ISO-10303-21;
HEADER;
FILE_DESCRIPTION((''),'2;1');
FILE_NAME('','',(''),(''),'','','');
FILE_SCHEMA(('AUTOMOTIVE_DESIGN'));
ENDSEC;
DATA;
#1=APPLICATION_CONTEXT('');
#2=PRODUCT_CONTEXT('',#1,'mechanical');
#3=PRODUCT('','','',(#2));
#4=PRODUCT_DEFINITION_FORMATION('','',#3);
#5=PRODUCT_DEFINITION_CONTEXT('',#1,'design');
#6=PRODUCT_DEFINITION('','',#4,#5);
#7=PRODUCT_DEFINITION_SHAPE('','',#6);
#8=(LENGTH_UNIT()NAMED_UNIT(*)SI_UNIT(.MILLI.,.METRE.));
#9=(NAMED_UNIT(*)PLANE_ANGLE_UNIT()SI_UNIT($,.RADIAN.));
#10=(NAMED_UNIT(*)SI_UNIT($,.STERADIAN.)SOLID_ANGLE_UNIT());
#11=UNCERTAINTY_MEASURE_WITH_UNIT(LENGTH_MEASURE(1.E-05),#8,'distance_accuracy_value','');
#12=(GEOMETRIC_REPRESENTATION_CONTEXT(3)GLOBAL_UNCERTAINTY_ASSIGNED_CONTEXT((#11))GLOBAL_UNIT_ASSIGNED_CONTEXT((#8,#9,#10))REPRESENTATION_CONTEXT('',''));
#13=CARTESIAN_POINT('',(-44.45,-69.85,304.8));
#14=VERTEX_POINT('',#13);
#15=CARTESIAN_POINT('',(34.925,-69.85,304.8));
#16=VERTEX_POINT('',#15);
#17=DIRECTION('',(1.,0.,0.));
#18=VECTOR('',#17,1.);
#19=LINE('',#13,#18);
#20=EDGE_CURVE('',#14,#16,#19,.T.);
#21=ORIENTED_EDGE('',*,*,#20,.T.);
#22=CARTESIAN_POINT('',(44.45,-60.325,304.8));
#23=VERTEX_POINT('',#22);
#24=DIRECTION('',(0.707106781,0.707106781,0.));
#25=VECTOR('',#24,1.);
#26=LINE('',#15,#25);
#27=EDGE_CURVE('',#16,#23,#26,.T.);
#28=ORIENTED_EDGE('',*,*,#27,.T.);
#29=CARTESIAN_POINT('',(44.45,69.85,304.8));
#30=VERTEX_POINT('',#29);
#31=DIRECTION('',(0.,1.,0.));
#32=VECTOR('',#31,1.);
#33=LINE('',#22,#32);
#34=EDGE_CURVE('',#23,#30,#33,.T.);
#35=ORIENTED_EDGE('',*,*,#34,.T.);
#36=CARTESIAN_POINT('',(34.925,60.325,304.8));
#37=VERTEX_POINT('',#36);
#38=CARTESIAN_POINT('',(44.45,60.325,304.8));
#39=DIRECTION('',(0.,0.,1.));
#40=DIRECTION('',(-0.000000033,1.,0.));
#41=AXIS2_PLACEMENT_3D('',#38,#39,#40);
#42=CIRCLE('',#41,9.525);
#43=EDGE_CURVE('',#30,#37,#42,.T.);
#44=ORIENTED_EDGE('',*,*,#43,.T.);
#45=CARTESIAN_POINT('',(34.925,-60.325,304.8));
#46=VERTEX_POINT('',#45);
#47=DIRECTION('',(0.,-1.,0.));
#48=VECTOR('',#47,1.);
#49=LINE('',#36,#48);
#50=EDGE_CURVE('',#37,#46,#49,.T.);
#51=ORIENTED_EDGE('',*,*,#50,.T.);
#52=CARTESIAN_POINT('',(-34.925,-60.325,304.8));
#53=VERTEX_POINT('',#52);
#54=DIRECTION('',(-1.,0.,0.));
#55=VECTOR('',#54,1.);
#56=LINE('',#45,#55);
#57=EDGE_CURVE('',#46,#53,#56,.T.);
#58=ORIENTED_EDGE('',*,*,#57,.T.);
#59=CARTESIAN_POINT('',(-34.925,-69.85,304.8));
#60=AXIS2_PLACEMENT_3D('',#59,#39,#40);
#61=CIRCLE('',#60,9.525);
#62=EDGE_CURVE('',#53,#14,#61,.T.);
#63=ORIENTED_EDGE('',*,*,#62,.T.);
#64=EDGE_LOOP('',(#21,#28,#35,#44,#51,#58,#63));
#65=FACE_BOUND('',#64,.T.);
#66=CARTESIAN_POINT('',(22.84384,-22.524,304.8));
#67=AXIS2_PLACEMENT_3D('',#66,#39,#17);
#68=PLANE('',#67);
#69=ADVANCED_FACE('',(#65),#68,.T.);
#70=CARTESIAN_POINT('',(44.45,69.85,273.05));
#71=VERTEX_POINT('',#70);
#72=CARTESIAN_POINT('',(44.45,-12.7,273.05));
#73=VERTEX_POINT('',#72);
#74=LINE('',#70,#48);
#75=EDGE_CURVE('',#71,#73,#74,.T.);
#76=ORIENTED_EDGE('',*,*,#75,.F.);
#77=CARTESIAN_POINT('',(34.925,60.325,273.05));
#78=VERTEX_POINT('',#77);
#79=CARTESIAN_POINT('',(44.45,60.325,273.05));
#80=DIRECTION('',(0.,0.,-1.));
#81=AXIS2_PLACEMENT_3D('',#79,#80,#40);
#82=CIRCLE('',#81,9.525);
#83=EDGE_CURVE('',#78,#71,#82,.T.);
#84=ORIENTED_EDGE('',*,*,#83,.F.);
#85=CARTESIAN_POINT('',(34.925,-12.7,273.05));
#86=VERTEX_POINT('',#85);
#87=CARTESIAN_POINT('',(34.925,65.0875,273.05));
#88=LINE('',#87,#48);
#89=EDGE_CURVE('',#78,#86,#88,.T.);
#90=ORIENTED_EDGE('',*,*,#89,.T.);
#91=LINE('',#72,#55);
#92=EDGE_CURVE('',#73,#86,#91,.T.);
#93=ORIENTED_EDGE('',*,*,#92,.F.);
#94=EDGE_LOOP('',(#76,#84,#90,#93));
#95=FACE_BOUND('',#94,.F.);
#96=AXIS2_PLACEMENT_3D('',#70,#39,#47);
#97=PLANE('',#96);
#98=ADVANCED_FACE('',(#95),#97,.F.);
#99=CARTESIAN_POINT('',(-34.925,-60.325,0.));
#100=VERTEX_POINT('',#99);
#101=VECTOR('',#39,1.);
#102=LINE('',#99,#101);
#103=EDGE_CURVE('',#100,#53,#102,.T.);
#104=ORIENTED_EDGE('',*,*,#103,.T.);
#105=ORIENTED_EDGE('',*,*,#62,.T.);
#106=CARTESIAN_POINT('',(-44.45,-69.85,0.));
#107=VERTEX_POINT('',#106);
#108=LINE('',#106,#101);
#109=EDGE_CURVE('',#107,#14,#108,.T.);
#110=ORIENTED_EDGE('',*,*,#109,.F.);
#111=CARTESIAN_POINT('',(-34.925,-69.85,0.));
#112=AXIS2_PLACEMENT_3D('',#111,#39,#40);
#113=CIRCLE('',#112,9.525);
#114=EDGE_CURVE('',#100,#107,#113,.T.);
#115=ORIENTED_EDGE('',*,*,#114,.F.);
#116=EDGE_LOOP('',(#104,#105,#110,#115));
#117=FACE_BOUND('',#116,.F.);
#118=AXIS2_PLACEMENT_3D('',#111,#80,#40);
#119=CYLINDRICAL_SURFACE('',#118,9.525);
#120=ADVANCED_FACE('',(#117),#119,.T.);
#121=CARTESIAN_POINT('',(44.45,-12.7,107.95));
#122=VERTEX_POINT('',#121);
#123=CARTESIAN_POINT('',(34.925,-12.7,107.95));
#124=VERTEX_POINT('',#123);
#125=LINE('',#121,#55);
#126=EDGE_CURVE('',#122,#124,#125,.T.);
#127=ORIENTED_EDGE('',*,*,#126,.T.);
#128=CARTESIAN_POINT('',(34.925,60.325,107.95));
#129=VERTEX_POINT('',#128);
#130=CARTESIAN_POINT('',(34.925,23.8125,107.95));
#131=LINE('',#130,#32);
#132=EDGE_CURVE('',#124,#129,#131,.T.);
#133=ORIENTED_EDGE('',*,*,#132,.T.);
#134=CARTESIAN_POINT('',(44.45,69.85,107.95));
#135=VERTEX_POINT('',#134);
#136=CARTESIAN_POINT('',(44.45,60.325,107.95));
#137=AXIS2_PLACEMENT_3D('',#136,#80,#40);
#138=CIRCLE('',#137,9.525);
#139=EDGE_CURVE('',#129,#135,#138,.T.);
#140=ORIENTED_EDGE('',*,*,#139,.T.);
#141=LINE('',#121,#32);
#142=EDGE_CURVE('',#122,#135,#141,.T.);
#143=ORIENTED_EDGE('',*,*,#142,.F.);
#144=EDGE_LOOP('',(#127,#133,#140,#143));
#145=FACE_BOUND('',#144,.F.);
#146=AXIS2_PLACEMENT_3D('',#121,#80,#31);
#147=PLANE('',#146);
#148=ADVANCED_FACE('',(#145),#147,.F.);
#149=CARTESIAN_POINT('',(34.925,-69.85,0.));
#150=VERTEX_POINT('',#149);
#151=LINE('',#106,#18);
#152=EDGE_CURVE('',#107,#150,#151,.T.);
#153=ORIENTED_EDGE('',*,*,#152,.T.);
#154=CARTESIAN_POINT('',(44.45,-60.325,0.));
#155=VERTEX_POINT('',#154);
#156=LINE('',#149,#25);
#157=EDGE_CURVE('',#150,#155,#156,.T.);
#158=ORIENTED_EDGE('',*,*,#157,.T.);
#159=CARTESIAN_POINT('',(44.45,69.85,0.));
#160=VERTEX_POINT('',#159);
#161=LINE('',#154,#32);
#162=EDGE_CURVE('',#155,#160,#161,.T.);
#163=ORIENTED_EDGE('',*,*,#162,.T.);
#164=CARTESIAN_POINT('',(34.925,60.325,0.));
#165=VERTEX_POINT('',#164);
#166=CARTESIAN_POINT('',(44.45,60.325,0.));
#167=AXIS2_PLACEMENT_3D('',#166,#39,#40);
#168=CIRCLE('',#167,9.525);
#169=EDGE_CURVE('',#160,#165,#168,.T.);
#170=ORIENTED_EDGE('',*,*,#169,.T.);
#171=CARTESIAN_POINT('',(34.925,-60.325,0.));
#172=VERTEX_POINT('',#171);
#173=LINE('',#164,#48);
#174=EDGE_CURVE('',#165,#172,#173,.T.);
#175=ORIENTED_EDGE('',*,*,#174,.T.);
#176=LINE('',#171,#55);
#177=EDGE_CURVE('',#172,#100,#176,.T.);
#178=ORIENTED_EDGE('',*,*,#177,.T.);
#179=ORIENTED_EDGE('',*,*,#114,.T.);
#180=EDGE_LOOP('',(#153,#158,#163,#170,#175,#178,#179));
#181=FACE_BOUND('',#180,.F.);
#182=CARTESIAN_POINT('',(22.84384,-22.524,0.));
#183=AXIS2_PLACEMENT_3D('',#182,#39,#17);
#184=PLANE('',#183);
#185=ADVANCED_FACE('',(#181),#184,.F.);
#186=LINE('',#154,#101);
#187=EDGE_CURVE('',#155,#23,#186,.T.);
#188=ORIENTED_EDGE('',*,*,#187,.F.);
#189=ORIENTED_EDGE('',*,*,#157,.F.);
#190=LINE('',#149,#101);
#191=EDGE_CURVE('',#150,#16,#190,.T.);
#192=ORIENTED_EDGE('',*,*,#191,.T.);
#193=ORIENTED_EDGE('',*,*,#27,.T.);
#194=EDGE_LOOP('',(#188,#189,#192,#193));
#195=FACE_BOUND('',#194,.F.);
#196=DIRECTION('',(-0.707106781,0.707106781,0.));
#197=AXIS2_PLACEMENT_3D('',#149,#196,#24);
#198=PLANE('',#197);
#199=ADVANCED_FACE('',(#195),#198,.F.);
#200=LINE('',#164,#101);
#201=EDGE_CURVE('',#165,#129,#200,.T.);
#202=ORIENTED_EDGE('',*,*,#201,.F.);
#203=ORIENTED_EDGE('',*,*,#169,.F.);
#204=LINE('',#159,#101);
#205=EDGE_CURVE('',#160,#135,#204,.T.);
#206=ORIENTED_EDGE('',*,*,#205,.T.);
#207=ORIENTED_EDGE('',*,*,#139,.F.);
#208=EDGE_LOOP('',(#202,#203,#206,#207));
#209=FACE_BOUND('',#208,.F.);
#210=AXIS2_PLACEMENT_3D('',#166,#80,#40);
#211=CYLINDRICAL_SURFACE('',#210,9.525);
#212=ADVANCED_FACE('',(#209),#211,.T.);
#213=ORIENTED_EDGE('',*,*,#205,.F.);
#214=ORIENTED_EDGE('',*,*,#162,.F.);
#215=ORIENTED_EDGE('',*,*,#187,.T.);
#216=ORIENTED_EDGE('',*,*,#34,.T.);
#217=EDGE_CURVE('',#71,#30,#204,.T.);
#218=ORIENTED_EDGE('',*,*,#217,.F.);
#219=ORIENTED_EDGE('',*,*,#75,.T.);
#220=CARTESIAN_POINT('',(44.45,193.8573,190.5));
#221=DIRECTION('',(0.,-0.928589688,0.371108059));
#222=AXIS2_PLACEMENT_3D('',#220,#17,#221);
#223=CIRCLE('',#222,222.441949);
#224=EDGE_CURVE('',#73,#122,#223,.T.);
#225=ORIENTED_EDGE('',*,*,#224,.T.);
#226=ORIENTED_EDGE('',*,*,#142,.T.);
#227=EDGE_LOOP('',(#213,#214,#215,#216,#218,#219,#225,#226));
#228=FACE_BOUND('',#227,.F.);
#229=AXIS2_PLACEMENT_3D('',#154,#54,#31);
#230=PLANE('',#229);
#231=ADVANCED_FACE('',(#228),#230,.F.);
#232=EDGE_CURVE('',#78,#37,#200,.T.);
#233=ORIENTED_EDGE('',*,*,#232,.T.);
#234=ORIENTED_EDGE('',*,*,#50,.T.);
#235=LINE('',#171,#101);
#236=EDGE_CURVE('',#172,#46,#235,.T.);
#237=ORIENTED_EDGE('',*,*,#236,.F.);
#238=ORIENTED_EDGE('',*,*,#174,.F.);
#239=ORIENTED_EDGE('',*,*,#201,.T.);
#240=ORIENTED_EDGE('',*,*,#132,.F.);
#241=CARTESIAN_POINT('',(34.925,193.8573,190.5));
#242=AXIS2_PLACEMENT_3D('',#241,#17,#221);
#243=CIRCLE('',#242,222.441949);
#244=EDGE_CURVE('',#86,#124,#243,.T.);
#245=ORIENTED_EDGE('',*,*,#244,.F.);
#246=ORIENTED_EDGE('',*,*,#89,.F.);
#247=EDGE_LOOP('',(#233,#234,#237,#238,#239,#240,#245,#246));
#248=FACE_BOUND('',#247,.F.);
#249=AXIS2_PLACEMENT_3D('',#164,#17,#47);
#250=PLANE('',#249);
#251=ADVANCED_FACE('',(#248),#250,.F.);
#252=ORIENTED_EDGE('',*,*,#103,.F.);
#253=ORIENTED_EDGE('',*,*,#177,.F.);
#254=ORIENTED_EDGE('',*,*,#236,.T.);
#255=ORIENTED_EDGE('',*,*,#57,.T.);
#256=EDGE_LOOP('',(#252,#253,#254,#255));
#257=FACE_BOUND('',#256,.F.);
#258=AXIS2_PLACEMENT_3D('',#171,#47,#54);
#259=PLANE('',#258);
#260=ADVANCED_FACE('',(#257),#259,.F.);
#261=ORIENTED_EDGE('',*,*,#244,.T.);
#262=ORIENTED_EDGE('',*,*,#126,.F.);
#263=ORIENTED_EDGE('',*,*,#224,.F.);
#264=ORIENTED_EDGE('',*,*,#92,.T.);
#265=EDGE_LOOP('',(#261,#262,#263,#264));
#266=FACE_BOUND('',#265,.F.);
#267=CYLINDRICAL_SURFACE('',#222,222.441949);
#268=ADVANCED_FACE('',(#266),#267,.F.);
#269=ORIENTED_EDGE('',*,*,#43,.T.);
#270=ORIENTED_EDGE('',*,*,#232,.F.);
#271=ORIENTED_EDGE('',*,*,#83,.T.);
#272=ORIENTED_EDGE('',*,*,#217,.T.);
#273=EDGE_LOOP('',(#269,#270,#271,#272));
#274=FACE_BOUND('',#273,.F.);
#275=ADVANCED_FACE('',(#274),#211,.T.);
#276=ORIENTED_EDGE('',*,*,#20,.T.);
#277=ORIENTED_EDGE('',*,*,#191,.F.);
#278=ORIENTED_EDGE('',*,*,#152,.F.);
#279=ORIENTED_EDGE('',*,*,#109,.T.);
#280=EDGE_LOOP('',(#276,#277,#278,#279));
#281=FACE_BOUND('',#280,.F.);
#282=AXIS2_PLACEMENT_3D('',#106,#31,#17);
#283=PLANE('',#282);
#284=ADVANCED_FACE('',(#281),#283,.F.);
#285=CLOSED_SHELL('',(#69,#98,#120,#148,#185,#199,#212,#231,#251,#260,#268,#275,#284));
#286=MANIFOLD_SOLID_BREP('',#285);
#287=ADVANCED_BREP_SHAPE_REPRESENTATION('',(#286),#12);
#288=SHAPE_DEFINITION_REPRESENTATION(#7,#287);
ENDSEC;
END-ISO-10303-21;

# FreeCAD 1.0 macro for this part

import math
import FreeCAD as App
import Part
import Sketcher

V = App.Vector
Q = App.Units.Quantity

doc = App.newDocument("Part")
params = doc.addObject("Spreadsheet::Sheet", "Params")
for row, (alias, value) in enumerate([
    ("sketch1_radius", "0.375 in"),
    ("sketch1_width", "2.75 in"),
    ("sketch1_height", "4.75 in"),
    ("pad1_length", "12 in"),
    ("sketch2_height", "6.5 in"),
    ("sketch2_width", "3.25 in"),
], start=1):
    params.set(f"A{row}", alias)
    params.set(f"B{row}", "=" + value)
    params.setAlias(f"B{row}", alias)

body = doc.addObject("PartDesign::Body", "Body")

# Sketch on XY plane
sketch1 = doc.addObject("Sketcher::SketchObject", "Sketch")
body.addObject(sketch1)
sketch1.AttachmentSupport = (doc.XY_Plane, [""])
sketch1.MapMode = "FlatFace"
sketch1.addGeometry(Part.LineSegment(V(-44, -70, 0), V(35, -70, 0)), False)
sketch1.addGeometry(Part.LineSegment(V(35, -70, 0), V(44, -60, 0)), False)
sketch1.addGeometry(Part.LineSegment(V(44, -60, 0), V(44, 70, 0)), False)
sketch1.addGeometry(Part.ArcOfCircle(Part.Circle(V(44, 60, 0), V(0, 0, 1), 10), math.radians(90), math.radians(180)), False)
sketch1.addGeometry(Part.LineSegment(V(35, 60, 0), V(35, -60, 0)), False)
sketch1.addGeometry(Part.LineSegment(V(35, -60, 0), V(-35, -60, 0)), False)
sketch1.addGeometry(Part.ArcOfCircle(Part.Circle(V(-35, -70, 0), V(0, 0, 1), 10), math.radians(90), math.radians(180)), False)
sketch1.addConstraint(Sketcher.Constraint("Coincident", 0, 2, 1, 1))
sketch1.addConstraint(Sketcher.Constraint("Coincident", 1, 2, 2, 1))
sketch1.addConstraint(Sketcher.Constraint("Coincident", 2, 2, 3, 1))
sketch1.addConstraint(Sketcher.Constraint("Tangent", 3, 2, 4, 1))
sketch1.addConstraint(Sketcher.Constraint("Coincident", 4, 2, 5, 1))
sketch1.addConstraint(Sketcher.Constraint("Tangent", 5, 2, 6, 1))
sketch1.addConstraint(Sketcher.Constraint("Coincident", 6, 2, 0, 1))
sketch1.addConstraint(Sketcher.Constraint("Horizontal", 0))
sketch1.addConstraint(Sketcher.Constraint("Vertical", 2))
sketch1.addConstraint(Sketcher.Constraint("Vertical", 4))
sketch1.addConstraint(Sketcher.Constraint("Horizontal", 5))
sketch1.addConstraint(Sketcher.Constraint("Equal", 3, 6))
sketch1.addConstraint(Sketcher.Constraint("Symmetric", 3, 2, 5, 2, -1, 1))
sketch1.addConstraint(Sketcher.Constraint("Symmetric", 2, 2, 6, 2, -1, 1))
sketch1.addConstraint(Sketcher.Constraint("Horizontal", 1, 2, 4, 2))
sketch1.addConstraint(Sketcher.Constraint("Vertical", 0, 2, 3, 2))
sketch1.addConstraint(Sketcher.Constraint("Radius", 3, Q("0.375 in")))
sketch1.addConstraint(Sketcher.Constraint("DistanceX", 5, 2, 5, 1, Q("2.75 in")))
sketch1.addConstraint(Sketcher.Constraint("DistanceY", 4, 2, 4, 1, Q("4.75 in")))
sketch1.setExpression("Constraints[16]", "Params.sketch1_radius")
sketch1.setExpression("Constraints[17]", "Params.sketch1_width")
sketch1.setExpression("Constraints[18]", "Params.sketch1_height")
pad1 = doc.addObject("PartDesign::Pad", "Pad")
body.addObject(pad1)
pad1.Profile = sketch1
pad1.setExpression("Length", "Params.pad1_length")

# Sketch on YZ plane
sketch2 = doc.addObject("Sketcher::SketchObject", "Sketch001")
body.addObject(sketch2)
sketch2.AttachmentSupport = (doc.YZ_Plane, [""])
sketch2.MapMode = "FlatFace"
sketch2.AttachmentOffset = App.Placement(V(0, 0, 1.75 * 25.4), App.Rotation())
sketch2.addGeometry(Part.LineSegment(V(70, 108, 0), V(70, 273, 0)), False)
sketch2.addGeometry(Part.LineSegment(V(70, 273, 0), V(-13, 273, 0)), False)
sketch2.addGeometry(Part.ArcOfCircle(Part.Circle(V(194, 190, 0), V(0, 0, 1), 222), math.radians(158), math.radians(202)), False)
sketch2.addGeometry(Part.LineSegment(V(-13, 108, 0), V(70, 108, 0)), False)
sketch2.addConstraint(Sketcher.Constraint("Coincident", 0, 2, 1, 1))
sketch2.addConstraint(Sketcher.Constraint("Coincident", 1, 2, 2, 1))
sketch2.addConstraint(Sketcher.Constraint("Coincident", 2, 2, 3, 1))
sketch2.addConstraint(Sketcher.Constraint("Coincident", 3, 2, 0, 1))
sketch2.addConstraint(Sketcher.Constraint("Vertical", 0))
sketch2.addConstraint(Sketcher.Constraint("Horizontal", 1))
sketch2.addConstraint(Sketcher.Constraint("Horizontal", 3))
sketch2.addConstraint(Sketcher.Constraint("Vertical", 1, 2, 2, 2))
sketch2.addConstraint(Sketcher.Constraint("DistanceY", 0, 1, 0, 2, Q("6.5 in")))
sketch2.addConstraint(Sketcher.Constraint("DistanceX", 1, 2, 1, 1, Q("3.25 in")))
sketch2.addConstraint(Sketcher.Constraint("DistanceY", -1, 1, 2, 3, Q("7.5 in")))
sketch2.addConstraint(Sketcher.Constraint("DistanceX", 1, 2, -1, 1, Q("0.5 in")))
sketch2.addConstraint(Sketcher.Constraint("Radius", 2, 222.441949))
sketch2.setExpression("Constraints[8]", "Params.sketch2_height")
sketch2.setExpression("Constraints[9]", "Params.sketch2_width")
pocket1 = doc.addObject("PartDesign::Pocket", "Pocket")
body.addObject(pocket1)
pocket1.Profile = sketch2
pocket1.Type = "ThroughAll"

doc.recompute()
